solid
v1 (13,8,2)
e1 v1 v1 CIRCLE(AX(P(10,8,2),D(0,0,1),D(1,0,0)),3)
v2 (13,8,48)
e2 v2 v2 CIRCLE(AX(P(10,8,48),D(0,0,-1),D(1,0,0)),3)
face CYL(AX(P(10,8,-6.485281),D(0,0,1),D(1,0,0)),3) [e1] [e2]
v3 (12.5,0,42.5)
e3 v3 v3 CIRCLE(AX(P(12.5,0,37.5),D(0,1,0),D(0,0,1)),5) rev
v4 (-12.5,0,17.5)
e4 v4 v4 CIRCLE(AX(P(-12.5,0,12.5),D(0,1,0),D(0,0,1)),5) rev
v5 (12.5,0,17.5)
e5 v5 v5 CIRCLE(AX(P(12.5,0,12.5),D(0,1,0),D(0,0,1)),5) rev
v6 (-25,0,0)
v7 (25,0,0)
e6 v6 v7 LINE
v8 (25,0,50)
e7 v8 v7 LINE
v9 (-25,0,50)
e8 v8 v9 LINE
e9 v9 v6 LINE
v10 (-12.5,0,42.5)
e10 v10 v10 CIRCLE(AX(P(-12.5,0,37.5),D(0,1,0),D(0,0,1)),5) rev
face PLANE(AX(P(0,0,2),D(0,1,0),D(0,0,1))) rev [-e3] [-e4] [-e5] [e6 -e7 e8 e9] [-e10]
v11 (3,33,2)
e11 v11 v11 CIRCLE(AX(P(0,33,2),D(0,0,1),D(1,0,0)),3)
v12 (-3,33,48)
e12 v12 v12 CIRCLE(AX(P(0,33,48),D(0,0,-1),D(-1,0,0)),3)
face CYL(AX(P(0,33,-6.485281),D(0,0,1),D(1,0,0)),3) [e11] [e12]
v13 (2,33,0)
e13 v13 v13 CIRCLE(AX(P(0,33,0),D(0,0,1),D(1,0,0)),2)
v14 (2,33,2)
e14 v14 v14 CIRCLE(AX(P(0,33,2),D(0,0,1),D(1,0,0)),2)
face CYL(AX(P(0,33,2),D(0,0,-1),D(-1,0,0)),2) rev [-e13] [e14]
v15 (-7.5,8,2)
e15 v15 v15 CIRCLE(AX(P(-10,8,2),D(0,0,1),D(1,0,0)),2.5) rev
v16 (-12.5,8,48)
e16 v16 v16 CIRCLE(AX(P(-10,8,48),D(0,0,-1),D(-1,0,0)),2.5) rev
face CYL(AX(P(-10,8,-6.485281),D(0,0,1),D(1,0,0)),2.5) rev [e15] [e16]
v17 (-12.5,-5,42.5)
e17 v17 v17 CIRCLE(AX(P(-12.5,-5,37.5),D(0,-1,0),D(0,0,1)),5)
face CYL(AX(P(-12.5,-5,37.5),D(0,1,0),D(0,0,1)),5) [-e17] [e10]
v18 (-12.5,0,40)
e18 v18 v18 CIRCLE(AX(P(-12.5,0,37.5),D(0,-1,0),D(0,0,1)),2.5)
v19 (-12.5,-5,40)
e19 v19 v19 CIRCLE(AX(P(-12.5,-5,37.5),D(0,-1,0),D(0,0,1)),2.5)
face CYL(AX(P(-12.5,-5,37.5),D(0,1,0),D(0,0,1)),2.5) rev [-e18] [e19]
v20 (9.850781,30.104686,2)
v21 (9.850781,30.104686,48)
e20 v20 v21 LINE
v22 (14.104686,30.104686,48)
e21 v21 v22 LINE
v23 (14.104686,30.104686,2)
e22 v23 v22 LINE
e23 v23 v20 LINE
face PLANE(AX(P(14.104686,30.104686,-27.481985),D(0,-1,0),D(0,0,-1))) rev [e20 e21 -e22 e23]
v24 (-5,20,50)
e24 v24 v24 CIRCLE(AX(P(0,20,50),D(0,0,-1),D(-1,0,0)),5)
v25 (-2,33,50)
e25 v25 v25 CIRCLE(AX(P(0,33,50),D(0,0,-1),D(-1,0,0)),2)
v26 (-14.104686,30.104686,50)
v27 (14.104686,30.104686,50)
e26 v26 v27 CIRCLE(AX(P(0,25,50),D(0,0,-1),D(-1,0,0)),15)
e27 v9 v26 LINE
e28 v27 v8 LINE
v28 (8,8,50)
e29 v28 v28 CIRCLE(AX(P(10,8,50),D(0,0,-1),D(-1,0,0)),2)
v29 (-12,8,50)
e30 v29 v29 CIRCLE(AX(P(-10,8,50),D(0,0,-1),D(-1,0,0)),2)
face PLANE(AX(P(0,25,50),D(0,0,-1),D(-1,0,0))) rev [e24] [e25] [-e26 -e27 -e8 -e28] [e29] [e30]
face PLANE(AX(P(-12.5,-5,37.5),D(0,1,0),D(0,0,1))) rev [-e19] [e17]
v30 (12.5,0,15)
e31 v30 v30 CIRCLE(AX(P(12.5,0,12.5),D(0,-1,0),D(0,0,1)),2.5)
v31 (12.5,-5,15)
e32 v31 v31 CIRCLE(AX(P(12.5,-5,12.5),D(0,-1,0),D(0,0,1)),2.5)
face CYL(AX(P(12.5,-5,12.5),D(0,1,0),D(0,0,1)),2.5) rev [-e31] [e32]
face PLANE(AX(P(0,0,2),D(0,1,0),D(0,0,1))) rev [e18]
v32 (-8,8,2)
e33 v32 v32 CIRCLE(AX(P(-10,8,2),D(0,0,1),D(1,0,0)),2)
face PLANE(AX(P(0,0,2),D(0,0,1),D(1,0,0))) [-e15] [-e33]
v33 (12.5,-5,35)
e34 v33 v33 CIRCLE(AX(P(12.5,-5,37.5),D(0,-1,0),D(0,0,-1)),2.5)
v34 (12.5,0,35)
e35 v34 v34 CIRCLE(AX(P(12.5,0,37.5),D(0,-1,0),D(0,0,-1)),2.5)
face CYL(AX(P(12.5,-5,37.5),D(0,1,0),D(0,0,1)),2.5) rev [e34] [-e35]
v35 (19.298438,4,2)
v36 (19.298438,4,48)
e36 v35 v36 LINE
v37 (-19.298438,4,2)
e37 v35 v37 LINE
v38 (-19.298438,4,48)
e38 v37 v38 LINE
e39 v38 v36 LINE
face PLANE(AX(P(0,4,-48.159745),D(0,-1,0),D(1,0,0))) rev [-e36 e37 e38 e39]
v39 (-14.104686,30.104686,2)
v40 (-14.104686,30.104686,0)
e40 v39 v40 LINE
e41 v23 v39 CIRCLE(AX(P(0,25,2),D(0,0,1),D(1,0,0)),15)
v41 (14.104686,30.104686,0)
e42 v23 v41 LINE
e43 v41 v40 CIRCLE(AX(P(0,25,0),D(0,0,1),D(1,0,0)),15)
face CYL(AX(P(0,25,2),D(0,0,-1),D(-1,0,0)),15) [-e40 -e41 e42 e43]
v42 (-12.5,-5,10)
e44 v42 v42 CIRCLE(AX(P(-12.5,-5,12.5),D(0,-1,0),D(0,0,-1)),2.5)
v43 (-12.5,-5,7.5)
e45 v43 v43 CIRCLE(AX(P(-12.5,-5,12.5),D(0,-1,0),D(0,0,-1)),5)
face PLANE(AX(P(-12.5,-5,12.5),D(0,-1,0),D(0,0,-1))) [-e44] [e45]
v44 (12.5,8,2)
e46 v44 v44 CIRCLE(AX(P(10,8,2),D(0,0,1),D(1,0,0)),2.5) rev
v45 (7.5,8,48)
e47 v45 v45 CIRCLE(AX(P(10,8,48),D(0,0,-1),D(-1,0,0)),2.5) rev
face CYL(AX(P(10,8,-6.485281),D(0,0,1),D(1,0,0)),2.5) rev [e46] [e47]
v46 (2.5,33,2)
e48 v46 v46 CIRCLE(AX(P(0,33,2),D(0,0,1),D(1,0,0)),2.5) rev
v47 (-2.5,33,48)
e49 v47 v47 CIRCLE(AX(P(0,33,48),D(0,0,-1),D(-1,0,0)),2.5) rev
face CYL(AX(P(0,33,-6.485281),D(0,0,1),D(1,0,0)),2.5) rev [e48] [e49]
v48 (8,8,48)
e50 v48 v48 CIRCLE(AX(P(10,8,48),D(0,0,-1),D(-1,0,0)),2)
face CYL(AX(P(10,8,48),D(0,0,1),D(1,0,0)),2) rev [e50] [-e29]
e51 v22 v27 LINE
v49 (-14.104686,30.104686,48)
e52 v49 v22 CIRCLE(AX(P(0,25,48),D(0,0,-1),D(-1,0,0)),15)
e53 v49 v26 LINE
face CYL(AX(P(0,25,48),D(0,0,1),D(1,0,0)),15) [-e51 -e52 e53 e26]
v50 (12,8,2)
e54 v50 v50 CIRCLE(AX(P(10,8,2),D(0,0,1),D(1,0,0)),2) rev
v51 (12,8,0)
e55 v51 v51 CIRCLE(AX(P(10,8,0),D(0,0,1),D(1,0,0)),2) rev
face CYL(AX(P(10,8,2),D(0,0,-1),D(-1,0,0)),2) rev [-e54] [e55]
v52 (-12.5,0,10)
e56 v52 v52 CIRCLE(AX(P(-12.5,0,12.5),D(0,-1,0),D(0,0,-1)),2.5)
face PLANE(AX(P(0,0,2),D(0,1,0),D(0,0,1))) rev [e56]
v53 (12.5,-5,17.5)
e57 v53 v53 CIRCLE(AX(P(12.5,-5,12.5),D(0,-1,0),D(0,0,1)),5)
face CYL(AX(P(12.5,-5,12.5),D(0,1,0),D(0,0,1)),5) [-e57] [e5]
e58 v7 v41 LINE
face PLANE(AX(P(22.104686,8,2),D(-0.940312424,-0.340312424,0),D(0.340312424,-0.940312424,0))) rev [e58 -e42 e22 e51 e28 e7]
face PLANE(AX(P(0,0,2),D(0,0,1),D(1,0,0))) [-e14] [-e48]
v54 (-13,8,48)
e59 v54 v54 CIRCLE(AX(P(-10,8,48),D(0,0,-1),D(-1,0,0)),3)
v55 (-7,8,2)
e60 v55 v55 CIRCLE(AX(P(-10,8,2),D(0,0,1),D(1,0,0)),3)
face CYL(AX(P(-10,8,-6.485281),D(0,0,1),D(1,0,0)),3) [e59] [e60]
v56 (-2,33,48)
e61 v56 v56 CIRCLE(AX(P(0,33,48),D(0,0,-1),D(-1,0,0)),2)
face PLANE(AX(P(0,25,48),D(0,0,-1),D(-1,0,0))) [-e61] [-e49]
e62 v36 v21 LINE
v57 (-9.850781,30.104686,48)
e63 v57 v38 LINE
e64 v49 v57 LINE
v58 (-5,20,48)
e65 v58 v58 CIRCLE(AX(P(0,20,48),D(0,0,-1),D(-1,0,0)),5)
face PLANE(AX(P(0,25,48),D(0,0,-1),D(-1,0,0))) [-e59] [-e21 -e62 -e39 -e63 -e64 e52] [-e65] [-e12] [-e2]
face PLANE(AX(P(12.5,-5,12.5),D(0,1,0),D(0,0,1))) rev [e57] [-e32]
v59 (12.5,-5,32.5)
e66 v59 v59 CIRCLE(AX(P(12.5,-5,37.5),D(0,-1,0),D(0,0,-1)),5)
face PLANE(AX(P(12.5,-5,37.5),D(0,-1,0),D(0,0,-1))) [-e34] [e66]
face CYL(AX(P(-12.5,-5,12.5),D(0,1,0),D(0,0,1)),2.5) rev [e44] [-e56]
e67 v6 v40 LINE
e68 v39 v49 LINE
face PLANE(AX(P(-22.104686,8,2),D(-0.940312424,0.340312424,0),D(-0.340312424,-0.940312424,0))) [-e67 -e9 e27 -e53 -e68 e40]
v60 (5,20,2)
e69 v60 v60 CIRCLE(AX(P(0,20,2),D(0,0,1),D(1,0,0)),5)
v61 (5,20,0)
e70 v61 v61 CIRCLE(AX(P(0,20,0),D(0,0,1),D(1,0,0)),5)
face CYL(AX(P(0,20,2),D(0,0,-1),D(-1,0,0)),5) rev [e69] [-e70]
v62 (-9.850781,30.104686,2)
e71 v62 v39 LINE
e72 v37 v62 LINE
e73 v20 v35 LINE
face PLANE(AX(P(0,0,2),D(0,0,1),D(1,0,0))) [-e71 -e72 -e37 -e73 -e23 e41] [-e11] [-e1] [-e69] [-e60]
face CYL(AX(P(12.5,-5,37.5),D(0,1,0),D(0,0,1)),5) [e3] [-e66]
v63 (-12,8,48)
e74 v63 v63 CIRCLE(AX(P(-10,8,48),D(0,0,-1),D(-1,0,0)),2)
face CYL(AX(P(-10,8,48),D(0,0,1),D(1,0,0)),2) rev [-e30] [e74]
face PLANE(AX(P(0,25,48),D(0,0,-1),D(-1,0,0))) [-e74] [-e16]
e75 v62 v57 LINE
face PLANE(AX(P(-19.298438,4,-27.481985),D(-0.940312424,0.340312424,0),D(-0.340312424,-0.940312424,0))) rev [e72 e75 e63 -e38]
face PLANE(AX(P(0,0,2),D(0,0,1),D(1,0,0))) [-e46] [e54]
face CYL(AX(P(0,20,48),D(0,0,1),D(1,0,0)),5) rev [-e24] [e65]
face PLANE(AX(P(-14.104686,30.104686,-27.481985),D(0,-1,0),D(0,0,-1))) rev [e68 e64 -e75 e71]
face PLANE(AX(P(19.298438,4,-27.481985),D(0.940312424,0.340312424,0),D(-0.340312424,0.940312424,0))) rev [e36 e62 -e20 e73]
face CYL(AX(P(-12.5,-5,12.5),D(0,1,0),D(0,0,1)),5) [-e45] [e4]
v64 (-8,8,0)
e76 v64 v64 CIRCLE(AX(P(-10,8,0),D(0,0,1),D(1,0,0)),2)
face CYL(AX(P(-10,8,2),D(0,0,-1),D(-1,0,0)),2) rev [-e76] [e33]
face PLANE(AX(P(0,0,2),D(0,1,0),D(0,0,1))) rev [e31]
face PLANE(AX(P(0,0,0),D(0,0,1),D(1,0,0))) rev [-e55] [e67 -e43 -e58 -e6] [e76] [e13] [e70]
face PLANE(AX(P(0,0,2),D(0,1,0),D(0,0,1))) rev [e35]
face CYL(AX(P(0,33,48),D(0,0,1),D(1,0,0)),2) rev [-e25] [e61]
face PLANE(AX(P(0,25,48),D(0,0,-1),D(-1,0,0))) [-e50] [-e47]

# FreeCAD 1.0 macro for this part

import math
import FreeCAD as App
import Part
import Sketcher

V = App.Vector

doc = App.newDocument("Part")
body = doc.addObject("PartDesign::Body", "Body")

# Sketch on XY plane
sketch1 = doc.addObject("Sketcher::SketchObject", "Sketch")
body.addObject(sketch1)
sketch1.AttachmentSupport = (doc.XY_Plane, [""])
sketch1.MapMode = "FlatFace"
sketch1.addGeometry(Part.LineSegment(V(-25, 0, 0), V(25, 0, 0)), False)
sketch1.addGeometry(Part.LineSegment(V(25, 0, 0), V(14.1, 30.1, 0)), False)
sketch1.addGeometry(Part.ArcOfCircle(Part.Circle(V(0, 25, 0), V(0, 0, 1), 15), math.radians(20), math.radians(160)), False)
sketch1.addGeometry(Part.LineSegment(V(-14.1, 30.1, 0), V(-25, 0, 0)), False)
sketch1.addGeometry(Part.Circle(V(-10, 8, 0), V(0, 0, 1), 2), False)
sketch1.addGeometry(Part.Circle(V(10, 8, 0), V(0, 0, 1), 2), False)
sketch1.addGeometry(Part.Circle(V(0, 20, 0), V(0, 0, 1), 5), False)
sketch1.addGeometry(Part.Circle(V(0, 33, 0), V(0, 0, 1), 2), False)
sketch1.addConstraint(Sketcher.Constraint("Coincident", 0, 2, 1, 1))
sketch1.addConstraint(Sketcher.Constraint("Tangent", 1, 2, 2, 1))
sketch1.addConstraint(Sketcher.Constraint("Tangent", 2, 2, 3, 1))
sketch1.addConstraint(Sketcher.Constraint("Coincident", 3, 2, 0, 1))
sketch1.addConstraint(Sketcher.Constraint("Horizontal", 0))
sketch1.addConstraint(Sketcher.Constraint("Equal", 4, 5))
sketch1.addConstraint(Sketcher.Constraint("Equal", 5, 7))
sketch1.addConstraint(Sketcher.Constraint("Symmetric", 0, 2, 3, 2, -1, 1))
sketch1.addConstraint(Sketcher.Constraint("Symmetric", 4, 3, 5, 3, -2))
sketch1.addConstraint(Sketcher.Constraint("PointOnObject", 2, 3, -2))
sketch1.addConstraint(Sketcher.Constraint("PointOnObject", 6, 3, -2))
sketch1.addConstraint(Sketcher.Constraint("PointOnObject", 7, 3, -2))
sketch1.addConstraint(Sketcher.Constraint("Diameter", 4, 4.0))
sketch1.addConstraint(Sketcher.Constraint("Diameter", 6, 10.0))
sketch1.addConstraint(Sketcher.Constraint("Radius", 2, 15.0))
sketch1.addConstraint(Sketcher.Constraint("DistanceX", 0, 1, 0, 2, 50.0))
sketch1.addConstraint(Sketcher.Constraint("DistanceY", -1, 1, 2, 3, 25.0))
sketch1.addConstraint(Sketcher.Constraint("DistanceX", 4, 3, -1, 1, 10.0))
sketch1.addConstraint(Sketcher.Constraint("DistanceY", -1, 1, 4, 3, 8.0))
sketch1.addConstraint(Sketcher.Constraint("DistanceY", -1, 1, 6, 3, 20.0))
sketch1.addConstraint(Sketcher.Constraint("DistanceY", -1, 1, 7, 3, 33.0))
pad1 = doc.addObject("PartDesign::Pad", "Pad")
body.addObject(pad1)
pad1.Profile = sketch1
pad1.Length = 2
body2 = doc.addObject("PartDesign::Body", "Body001")

# Sketch on XY plane
sketch2 = doc.addObject("Sketcher::SketchObject", "Sketch001")
body2.addObject(sketch2)
sketch2.AttachmentSupport = (doc.getObject("XY_Plane001"), [""])
sketch2.MapMode = "FlatFace"
sketch2.AttachmentOffset = App.Placement(V(0, 0, 50), App.Rotation())
sketch2.addGeometry(Part.LineSegment(V(25, 0, 0), V(-25, 0, 0)), False)
sketch2.addGeometry(Part.LineSegment(V(-25, 0, 0), V(-14.1, 30.1, 0)), False)
sketch2.addGeometry(Part.ArcOfCircle(Part.Circle(V(0, 25, 0), V(0, 0, 1), 15), math.radians(20), math.radians(160)), False)
sketch2.addGeometry(Part.LineSegment(V(14.1, 30.1, 0), V(25, 0, 0)), False)
sketch2.addGeometry(Part.Circle(V(10, 8, 0), V(0, 0, 1), 2), False)
sketch2.addGeometry(Part.Circle(V(-10, 8, 0), V(0, 0, 1), 2), False)
sketch2.addGeometry(Part.Circle(V(0, 20, 0), V(0, 0, 1), 5), False)
sketch2.addGeometry(Part.Circle(V(0, 33, 0), V(0, 0, 1), 2), False)
sketch2.addConstraint(Sketcher.Constraint("Coincident", 0, 2, 1, 1))
sketch2.addConstraint(Sketcher.Constraint("Tangent", 1, 2, 2, 2))
sketch2.addConstraint(Sketcher.Constraint("Tangent", 2, 1, 3, 1))
sketch2.addConstraint(Sketcher.Constraint("Coincident", 3, 2, 0, 1))
sketch2.addConstraint(Sketcher.Constraint("Horizontal", 0))
sketch2.addConstraint(Sketcher.Constraint("Equal", 4, 5))
sketch2.addConstraint(Sketcher.Constraint("Equal", 5, 7))
sketch2.addConstraint(Sketcher.Constraint("Symmetric", 0, 2, 3, 2, -1, 1))
sketch2.addConstraint(Sketcher.Constraint("Symmetric", 4, 3, 5, 3, -2))
sketch2.addConstraint(Sketcher.Constraint("PointOnObject", 2, 3, -2))
sketch2.addConstraint(Sketcher.Constraint("PointOnObject", 6, 3, -2))
sketch2.addConstraint(Sketcher.Constraint("PointOnObject", 7, 3, -2))
sketch2.addConstraint(Sketcher.Constraint("Diameter", 4, 4.0))
sketch2.addConstraint(Sketcher.Constraint("Diameter", 6, 10.0))
sketch2.addConstraint(Sketcher.Constraint("Radius", 2, 15.0))
sketch2.addConstraint(Sketcher.Constraint("DistanceX", 0, 2, 0, 1, 50.0))
sketch2.addConstraint(Sketcher.Constraint("DistanceY", -1, 1, 2, 3, 25.0))
sketch2.addConstraint(Sketcher.Constraint("DistanceX", -1, 1, 4, 3, 10.0))
sketch2.addConstraint(Sketcher.Constraint("DistanceY", -1, 1, 4, 3, 8.0))
sketch2.addConstraint(Sketcher.Constraint("DistanceY", -1, 1, 6, 3, 20.0))
sketch2.addConstraint(Sketcher.Constraint("DistanceY", -1, 1, 7, 3, 33.0))
pad2 = doc.addObject("PartDesign::Pad", "Pad001")
body2.addObject(pad2)
pad2.Profile = sketch2
pad2.Length = 2
pad2.Reversed = True
body.AllowCompound = True
doc.recompute()

boolean = doc.addObject("PartDesign::Boolean", "Boolean")
body.addObject(boolean)
boolean.Type = "Fuse"
boolean.addObjects([body2])

# Sketch on XY plane
sketch3 = doc.addObject("Sketcher::SketchObject", "Sketch002")
body.addObject(sketch3)
sketch3.AttachmentSupport = (doc.XY_Plane, [""])
sketch3.MapMode = "FlatFace"
sketch3.AttachmentOffset = App.Placement(V(0, 0, 48), App.Rotation())
sketch3.addGeometry(Part.LineSegment(V(25, 0, 0), V(-25, 0, 0)), False)
sketch3.addGeometry(Part.LineSegment(V(-25, 0, 0), V(-23.6, 4, 0)), False)
sketch3.addGeometry(Part.LineSegment(V(-23.6, 4, 0), V(23.6, 4, 0)), False)
sketch3.addGeometry(Part.LineSegment(V(23.6, 4, 0), V(25, 0, 0)), False)
sketch3.addConstraint(Sketcher.Constraint("Coincident", 0, 2, 1, 1))
sketch3.addConstraint(Sketcher.Constraint("Coincident", 1, 2, 2, 1))
sketch3.addConstraint(Sketcher.Constraint("Coincident", 2, 2, 3, 1))
sketch3.addConstraint(Sketcher.Constraint("Coincident", 3, 2, 0, 1))
sketch3.addConstraint(Sketcher.Constraint("Horizontal", 0))
sketch3.addConstraint(Sketcher.Constraint("Horizontal", 2))
sketch3.addConstraint(Sketcher.Constraint("Symmetric", 0, 2, 3, 2, -1, 1))
sketch3.addConstraint(Sketcher.Constraint("Equal", 1, 3))
sketch3.addConstraint(Sketcher.Constraint("DistanceX", 0, 2, 0, 1, 50.0))
sketch3.addConstraint(Sketcher.Constraint("DistanceY", -1, 1, 1, 2, 4.0))
sketch3.addConstraint(Sketcher.Constraint("DistanceX", 2, 1, 2, 2, 47.104686))
pad3 = doc.addObject("PartDesign::Pad", "Pad002")
body.addObject(pad3)
pad3.Profile = sketch3
pad3.Length = 46
pad3.Reversed = True

# Sketch on XY plane
sketch4 = doc.addObject("Sketcher::SketchObject", "Sketch003")
body.addObject(sketch4)
sketch4.AttachmentSupport = (doc.XY_Plane, [""])
sketch4.MapMode = "FlatFace"
sketch4.AttachmentOffset = App.Placement(V(0, 0, 48), App.Rotation())
sketch4.addGeometry(Part.Circle(V(-10, 8, 0), V(0, 0, 1), 3), False)
sketch4.addGeometry(Part.Circle(V(-10, 8, 0), V(0, 0, 1), 2.5), False)
sketch4.addGeometry(Part.Circle(V(0, 33, 0), V(0, 0, 1), 3), False)
sketch4.addGeometry(Part.Circle(V(0, 33, 0), V(0, 0, 1), 2.5), False)
sketch4.addGeometry(Part.Circle(V(10, 8, 0), V(0, 0, 1), 3), False)
sketch4.addGeometry(Part.Circle(V(10, 8, 0), V(0, 0, 1), 2.5), False)
sketch4.addConstraint(Sketcher.Constraint("Coincident", 1, 3, 0, 3))
sketch4.addConstraint(Sketcher.Constraint("Coincident", 3, 3, 2, 3))
sketch4.addConstraint(Sketcher.Constraint("Coincident", 5, 3, 4, 3))
sketch4.addConstraint(Sketcher.Constraint("Equal", 0, 2))
sketch4.addConstraint(Sketcher.Constraint("Equal", 1, 3))
sketch4.addConstraint(Sketcher.Constraint("Equal", 2, 4))
sketch4.addConstraint(Sketcher.Constraint("Equal", 3, 5))
sketch4.addConstraint(Sketcher.Constraint("Symmetric", 0, 3, 4, 3, -2))
sketch4.addConstraint(Sketcher.Constraint("PointOnObject", 2, 3, -2))
sketch4.addConstraint(Sketcher.Constraint("Diameter", 0, 6.0))
sketch4.addConstraint(Sketcher.Constraint("Diameter", 1, 5.0))
sketch4.addConstraint(Sketcher.Constraint("DistanceX", 0, 3, -1, 1, 10.0))
sketch4.addConstraint(Sketcher.Constraint("DistanceY", -1, 1, 0, 3, 8.0))
sketch4.addConstraint(Sketcher.Constraint("DistanceY", -1, 1, 2, 3, 33.0))
pad4 = doc.addObject("PartDesign::Pad", "Pad003")
body.addObject(pad4)
pad4.Profile = sketch4
pad4.Length = 46
pad4.Reversed = True

# Sketch on XY plane
sketch5 = doc.addObject("Sketcher::SketchObject", "Sketch004")
body.addObject(sketch5)
sketch5.AttachmentSupport = (doc.XY_Plane, [""])
sketch5.MapMode = "FlatFace"
sketch5.AttachmentOffset = App.Placement(V(0, 0, 48), App.Rotation())
sketch5.addGeometry(Part.LineSegment(V(-9.9, 30.1, 0), V(-19.3, 4, 0)), False)
sketch5.addGeometry(Part.LineSegment(V(-19.3, 4, 0), V(-23.6, 4, 0)), False)
sketch5.addGeometry(Part.LineSegment(V(-23.6, 4, 0), V(-14.1, 30.1, 0)), False)
sketch5.addGeometry(Part.LineSegment(V(-14.1, 30.1, 0), V(-9.9, 30.1, 0)), False)
sketch5.addGeometry(Part.LineSegment(V(23.6, 4, 0), V(19.3, 4, 0)), False)
sketch5.addGeometry(Part.LineSegment(V(19.3, 4, 0), V(9.9, 30.1, 0)), False)
sketch5.addGeometry(Part.LineSegment(V(9.9, 30.1, 0), V(14.1, 30.1, 0)), False)
sketch5.addGeometry(Part.LineSegment(V(14.1, 30.1, 0), V(23.6, 4, 0)), False)
sketch5.addConstraint(Sketcher.Constraint("Coincident", 0, 2, 1, 1))
sketch5.addConstraint(Sketcher.Constraint("Coincident", 1, 2, 2, 1))
sketch5.addConstraint(Sketcher.Constraint("Coincident", 2, 2, 3, 1))
sketch5.addConstraint(Sketcher.Constraint("Coincident", 3, 2, 0, 1))
sketch5.addConstraint(Sketcher.Constraint("Coincident", 4, 2, 5, 1))
sketch5.addConstraint(Sketcher.Constraint("Coincident", 5, 2, 6, 1))
sketch5.addConstraint(Sketcher.Constraint("Coincident", 6, 2, 7, 1))
sketch5.addConstraint(Sketcher.Constraint("Coincident", 7, 2, 4, 1))
sketch5.addConstraint(Sketcher.Constraint("Horizontal", 1))
sketch5.addConstraint(Sketcher.Constraint("Horizontal", 3))
sketch5.addConstraint(Sketcher.Constraint("Horizontal", 4))
sketch5.addConstraint(Sketcher.Constraint("Horizontal", 6))
sketch5.addConstraint(Sketcher.Constraint("Symmetric", 0, 2, 4, 2, -2))
sketch5.addConstraint(Sketcher.Constraint("Symmetric", 3, 2, 5, 2, -2))
sketch5.addConstraint(Sketcher.Constraint("Parallel", 0, 2))
sketch5.addConstraint(Sketcher.Constraint("Parallel", 5, 7))
sketch5.addConstraint(Sketcher.Constraint("Equal", 3, 4))
sketch5.addConstraint(Sketcher.Constraint("DistanceY", -1, 1, 0, 2, 4.0))
sketch5.addConstraint(Sketcher.Constraint("DistanceX", 1, 2, 1, 1, 4.253905))
sketch5.addConstraint(Sketcher.Constraint("DistanceX", 3, 2, -1, 1, 9.850781))
sketch5.addConstraint(Sketcher.Constraint("DistanceX", 0, 2, 2, 2, 5.193752))
sketch5.addConstraint(Sketcher.Constraint("Distance", 0, 27.761716))
pad5 = doc.addObject("PartDesign::Pad", "Pad004")
body.addObject(pad5)
pad5.Profile = sketch5
pad5.Length = 46
pad5.Reversed = True

# Sketch on XZ plane
sketch6 = doc.addObject("Sketcher::SketchObject", "Sketch005")
body.addObject(sketch6)
sketch6.AttachmentSupport = (doc.XZ_Plane, [""])
sketch6.MapMode = "FlatFace"
sketch6.addGeometry(Part.Circle(V(-12.5, 12.5, 0), V(0, 0, 1), 5), False)
sketch6.addGeometry(Part.Circle(V(-12.5, 12.5, 0), V(0, 0, 1), 2.5), False)
sketch6.addGeometry(Part.Circle(V(-12.5, 37.5, 0), V(0, 0, 1), 5), False)
sketch6.addGeometry(Part.Circle(V(-12.5, 37.5, 0), V(0, 0, 1), 2.5), False)
sketch6.addGeometry(Part.Circle(V(12.5, 37.5, 0), V(0, 0, 1), 5), False)
sketch6.addGeometry(Part.Circle(V(12.5, 37.5, 0), V(0, 0, 1), 2.5), False)
sketch6.addGeometry(Part.Circle(V(12.5, 12.5, 0), V(0, 0, 1), 5), False)
sketch6.addGeometry(Part.Circle(V(12.5, 12.5, 0), V(0, 0, 1), 2.5), False)
sketch6.addConstraint(Sketcher.Constraint("Coincident", 1, 3, 0, 3))
sketch6.addConstraint(Sketcher.Constraint("Coincident", 3, 3, 2, 3))
sketch6.addConstraint(Sketcher.Constraint("Coincident", 5, 3, 4, 3))
sketch6.addConstraint(Sketcher.Constraint("Coincident", 7, 3, 6, 3))
sketch6.addConstraint(Sketcher.Constraint("Equal", 0, 2))
sketch6.addConstraint(Sketcher.Constraint("Equal", 1, 3))
sketch6.addConstraint(Sketcher.Constraint("Equal", 2, 4))
sketch6.addConstraint(Sketcher.Constraint("Equal", 3, 5))
sketch6.addConstraint(Sketcher.Constraint("Equal", 4, 6))
sketch6.addConstraint(Sketcher.Constraint("Equal", 5, 7))
sketch6.addConstraint(Sketcher.Constraint("Symmetric", 2, 3, 4, 3, -2))
sketch6.addConstraint(Sketcher.Constraint("Symmetric", 0, 3, 6, 3, -2))
sketch6.addConstraint(Sketcher.Constraint("Vertical", 1, 3, 2, 3))
sketch6.addConstraint(Sketcher.Constraint("Diameter", 0, 10.0))
sketch6.addConstraint(Sketcher.Constraint("Diameter", 1, 5.0))
sketch6.addConstraint(Sketcher.Constraint("DistanceY", 0, 3, 2, 3, 25.0))
sketch6.addConstraint(Sketcher.Constraint("DistanceX", 2, 3, 4, 3, 25.0))
sketch6.addConstraint(Sketcher.Constraint("DistanceY", -1, 1, 0, 3, 12.5))
pad6 = doc.addObject("PartDesign::Pad", "Pad005")
body.addObject(pad6)
pad6.Profile = sketch6
pad6.Length = 5

doc.recompute()
